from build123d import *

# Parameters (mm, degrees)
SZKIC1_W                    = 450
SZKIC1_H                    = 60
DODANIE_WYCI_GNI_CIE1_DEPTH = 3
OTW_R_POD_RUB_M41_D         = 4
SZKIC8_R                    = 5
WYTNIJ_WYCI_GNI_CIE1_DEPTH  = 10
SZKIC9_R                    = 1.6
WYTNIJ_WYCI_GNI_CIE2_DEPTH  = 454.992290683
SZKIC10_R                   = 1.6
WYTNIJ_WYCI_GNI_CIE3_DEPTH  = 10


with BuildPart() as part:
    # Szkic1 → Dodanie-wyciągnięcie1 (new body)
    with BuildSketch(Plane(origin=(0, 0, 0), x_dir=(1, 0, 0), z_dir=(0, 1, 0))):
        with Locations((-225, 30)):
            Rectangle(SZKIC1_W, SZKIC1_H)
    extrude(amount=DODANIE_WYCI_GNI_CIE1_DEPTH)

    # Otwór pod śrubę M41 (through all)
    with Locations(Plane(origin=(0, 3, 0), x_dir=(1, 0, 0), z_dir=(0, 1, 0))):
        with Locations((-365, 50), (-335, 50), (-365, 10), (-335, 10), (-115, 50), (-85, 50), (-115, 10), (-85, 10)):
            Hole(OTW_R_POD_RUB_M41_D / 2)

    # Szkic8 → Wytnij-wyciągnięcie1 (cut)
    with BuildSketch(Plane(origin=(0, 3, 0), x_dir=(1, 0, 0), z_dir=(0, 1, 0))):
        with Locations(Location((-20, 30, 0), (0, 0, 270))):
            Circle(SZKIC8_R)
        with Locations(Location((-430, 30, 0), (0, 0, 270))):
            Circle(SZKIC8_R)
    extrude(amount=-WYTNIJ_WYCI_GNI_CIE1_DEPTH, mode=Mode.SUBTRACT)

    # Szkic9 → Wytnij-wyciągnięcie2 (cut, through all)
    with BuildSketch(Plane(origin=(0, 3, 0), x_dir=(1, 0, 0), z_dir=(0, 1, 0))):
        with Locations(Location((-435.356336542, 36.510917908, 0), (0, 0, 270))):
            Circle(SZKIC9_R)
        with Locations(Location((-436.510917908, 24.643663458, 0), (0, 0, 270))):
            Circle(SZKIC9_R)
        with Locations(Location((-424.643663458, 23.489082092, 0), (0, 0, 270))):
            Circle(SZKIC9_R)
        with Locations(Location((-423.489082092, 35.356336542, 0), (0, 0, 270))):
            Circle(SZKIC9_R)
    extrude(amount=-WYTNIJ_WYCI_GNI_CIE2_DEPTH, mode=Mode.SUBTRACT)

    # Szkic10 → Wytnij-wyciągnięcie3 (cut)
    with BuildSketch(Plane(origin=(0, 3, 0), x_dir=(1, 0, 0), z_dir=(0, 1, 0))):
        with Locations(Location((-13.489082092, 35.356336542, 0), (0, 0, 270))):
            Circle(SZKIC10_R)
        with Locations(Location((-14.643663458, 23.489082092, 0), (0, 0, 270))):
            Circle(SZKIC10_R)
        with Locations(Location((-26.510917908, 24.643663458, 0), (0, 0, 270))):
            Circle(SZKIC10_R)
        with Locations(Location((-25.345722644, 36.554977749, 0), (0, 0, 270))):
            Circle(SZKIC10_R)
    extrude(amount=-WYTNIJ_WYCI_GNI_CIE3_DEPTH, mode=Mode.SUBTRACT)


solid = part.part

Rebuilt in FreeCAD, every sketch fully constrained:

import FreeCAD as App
import Part
import Sketcher

V = App.Vector


def add_polygon(sketch, points):
    """Adds a closed chain of lines whose ends are joined by coincident constraints."""
    first, n = sketch.GeometryCount, len(points)
    for a, b in zip(points, points[1:] + points[:1]):
        sketch.addGeometry(Part.LineSegment(App.Vector(*a, 0), App.Vector(*b, 0)), False)
    for i in range(n):
        sketch.addConstraint(Sketcher.Constraint("Coincident", first + i, 2, first + (i + 1) % n, 1))

doc = App.newDocument("Part")
body = doc.addObject("PartDesign::Body", "Body")

# Sketch on XZ plane
sketch1 = body.newObject("Sketcher::SketchObject", "Sketch")
sketch1.AttachmentSupport = (doc.getObject("XZ_Plane"), [""])
sketch1.MapMode = "FlatFace"
add_polygon(sketch1, [(-450, -60), (-450, 0), (0, 0), (0, -60)])  # lines 0-3
sketch1.addConstraint(Sketcher.Constraint("Vertical", 0))
sketch1.addConstraint(Sketcher.Constraint("Horizontal", 1))
sketch1.addConstraint(Sketcher.Constraint("Vertical", 2))
sketch1.addConstraint(Sketcher.Constraint("Horizontal", 3))
sketch1.addConstraint(Sketcher.Constraint("Coincident", 1, 2, -1, 1))
sketch1.addConstraint(Sketcher.Constraint("DistanceX", 1, 1, 1, 2, 450.0))
sketch1.addConstraint(Sketcher.Constraint("DistanceY", 0, 1, 0, 2, 60.0))
pad1 = body.newObject("PartDesign::Pad", "Pad")
pad1.Profile = sketch1
pad1.Length = 3
pad1.Reversed = True

# Sketch on XZ plane
sketch2 = body.newObject("Sketcher::SketchObject", "Sketch001")
sketch2.AttachmentSupport = (doc.getObject("XZ_Plane"), [""])
sketch2.MapMode = "FlatFace"
sketch2.AttachmentOffset = App.Placement(V(0, 0, -3), App.Rotation())
sketch2.addGeometry(Part.Circle(V(-365, -50, 0), V(0, 0, 1), 2), False)
sketch2.addGeometry(Part.Circle(V(-335, -50, 0), V(0, 0, 1), 2), False)
sketch2.addGeometry(Part.Circle(V(-365, -10, 0), V(0, 0, 1), 2), False)
sketch2.addGeometry(Part.Circle(V(-335, -10, 0), V(0, 0, 1), 2), False)
sketch2.addGeometry(Part.Circle(V(-115, -50, 0), V(0, 0, 1), 2), False)
sketch2.addGeometry(Part.Circle(V(-85, -50, 0), V(0, 0, 1), 2), False)
sketch2.addGeometry(Part.Circle(V(-115, -10, 0), V(0, 0, 1), 2), False)
sketch2.addGeometry(Part.Circle(V(-85, -10, 0), V(0, 0, 1), 2), False)
sketch2.addConstraint(Sketcher.Constraint("Equal", 0, 1))
sketch2.addConstraint(Sketcher.Constraint("Equal", 1, 2))
sketch2.addConstraint(Sketcher.Constraint("Equal", 2, 3))
sketch2.addConstraint(Sketcher.Constraint("Equal", 3, 4))
sketch2.addConstraint(Sketcher.Constraint("Equal", 4, 5))
sketch2.addConstraint(Sketcher.Constraint("Equal", 5, 6))
sketch2.addConstraint(Sketcher.Constraint("Equal", 6, 7))
sketch2.addConstraint(Sketcher.Constraint("Horizontal", 0, 3, 1, 3))
sketch2.addConstraint(Sketcher.Constraint("Horizontal", 2, 3, 3, 3))
sketch2.addConstraint(Sketcher.Constraint("Horizontal", 1, 3, 4, 3))
sketch2.addConstraint(Sketcher.Constraint("Horizontal", 4, 3, 5, 3))
sketch2.addConstraint(Sketcher.Constraint("Horizontal", 3, 3, 6, 3))
sketch2.addConstraint(Sketcher.Constraint("Horizontal", 6, 3, 7, 3))
sketch2.addConstraint(Sketcher.Constraint("Vertical", 0, 3, 2, 3))
sketch2.addConstraint(Sketcher.Constraint("Vertical", 1, 3, 3, 3))
sketch2.addConstraint(Sketcher.Constraint("Vertical", 4, 3, 6, 3))
sketch2.addConstraint(Sketcher.Constraint("Vertical", 5, 3, 7, 3))
sketch2.addConstraint(Sketcher.Constraint("Diameter", 0, 4.0))
sketch2.addConstraint(Sketcher.Constraint("DistanceX", 0, 3, -1, 1, 365.0))
sketch2.addConstraint(Sketcher.Constraint("DistanceY", 0, 3, -1, 1, 50.0))
sketch2.addConstraint(Sketcher.Constraint("DistanceX", 1, 3, -1, 1, 335.0))
sketch2.addConstraint(Sketcher.Constraint("DistanceY", 2, 3, -1, 1, 10.0))
sketch2.addConstraint(Sketcher.Constraint("DistanceX", 4, 3, -1, 1, 115.0))
sketch2.addConstraint(Sketcher.Constraint("DistanceX", 5, 3, -1, 1, 85.0))
doc.recompute()
hole = body.newObject("PartDesign::Hole", "Hole")
hole.Profile = sketch2
hole.ThreadType = "None"
hole.Diameter = 4
hole.DepthType = "ThroughAll"
hole.Reversed = True

# Sketch on XZ plane
sketch3 = body.newObject("Sketcher::SketchObject", "Sketch002")
sketch3.AttachmentSupport = (doc.getObject("XZ_Plane"), [""])
sketch3.MapMode = "FlatFace"
sketch3.AttachmentOffset = App.Placement(V(0, 0, -3), App.Rotation())
sketch3.addGeometry(Part.Circle(V(-20, -30, 0), V(0, 0, 1), 5), False)
sketch3.addGeometry(Part.Circle(V(-430, -30, 0), V(0, 0, 1), 5), False)
sketch3.addConstraint(Sketcher.Constraint("Equal", 0, 1))
sketch3.addConstraint(Sketcher.Constraint("Horizontal", 0, 3, 1, 3))
sketch3.addConstraint(Sketcher.Constraint("Diameter", 0, 10.0))
sketch3.addConstraint(Sketcher.Constraint("DistanceX", 0, 3, -1, 1, 20.0))
sketch3.addConstraint(Sketcher.Constraint("DistanceY", 0, 3, -1, 1, 30.0))
sketch3.addConstraint(Sketcher.Constraint("DistanceX", 1, 3, -1, 1, 430.0))
pocket1 = body.newObject("PartDesign::Pocket", "Pocket")
pocket1.Profile = sketch3
pocket1.Length = 10
pocket1.Reversed = True

# Sketch on XZ plane
sketch4 = body.newObject("Sketcher::SketchObject", "Sketch003")
sketch4.AttachmentSupport = (doc.getObject("XZ_Plane"), [""])
sketch4.MapMode = "FlatFace"
sketch4.AttachmentOffset = App.Placement(V(0, 0, -3), App.Rotation())
sketch4.addGeometry(Part.Circle(V(-435.4, -36.5, 0), V(0, 0, 1), 1.6), False)
sketch4.addGeometry(Part.Circle(V(-436.5, -24.6, 0), V(0, 0, 1), 1.6), False)
sketch4.addGeometry(Part.Circle(V(-424.6, -23.5, 0), V(0, 0, 1), 1.6), False)
sketch4.addGeometry(Part.Circle(V(-423.5, -35.4, 0), V(0, 0, 1), 1.6), False)
sketch4.addConstraint(Sketcher.Constraint("Equal", 0, 1))
sketch4.addConstraint(Sketcher.Constraint("Equal", 1, 2))
sketch4.addConstraint(Sketcher.Constraint("Equal", 2, 3))
sketch4.addConstraint(Sketcher.Constraint("Diameter", 0, 3.2))
sketch4.addConstraint(Sketcher.Constraint("DistanceX", 1, 3, 0, 3, 1.154581))
sketch4.addConstraint(Sketcher.Constraint("DistanceY", 1, 3, 2, 3, 1.154581))
sketch4.addConstraint(Sketcher.Constraint("DistanceX", 2, 3, 3, 3, 1.154581))
sketch4.addConstraint(Sketcher.Constraint("DistanceY", 0, 3, 3, 3, 1.154581))
sketch4.addConstraint(Sketcher.Constraint("DistanceX", 0, 3, -1, 1, 435.356337))
sketch4.addConstraint(Sketcher.Constraint("DistanceY", 0, 3, -1, 1, 36.510918))
sketch4.addConstraint(Sketcher.Constraint("DistanceY", 1, 3, -1, 1, 24.643663))
sketch4.addConstraint(Sketcher.Constraint("DistanceX", 2, 3, -1, 1, 424.643663))
pocket2 = body.newObject("PartDesign::Pocket", "Pocket001")
pocket2.Profile = sketch4
pocket2.Type = "ThroughAll"
pocket2.Reversed = True

# Sketch on XZ plane
sketch5 = body.newObject("Sketcher::SketchObject", "Sketch004")
sketch5.AttachmentSupport = (doc.getObject("XZ_Plane"), [""])
sketch5.MapMode = "FlatFace"
sketch5.AttachmentOffset = App.Placement(V(0, 0, -3), App.Rotation())
sketch5.addGeometry(Part.Circle(V(-13.5, -35.4, 0), V(0, 0, 1), 1.6), False)
sketch5.addGeometry(Part.Circle(V(-14.6, -23.5, 0), V(0, 0, 1), 1.6), False)
sketch5.addGeometry(Part.Circle(V(-26.5, -24.6, 0), V(0, 0, 1), 1.6), False)
sketch5.addGeometry(Part.Circle(V(-25.3, -36.6, 0), V(0, 0, 1), 1.6), False)
sketch5.addConstraint(Sketcher.Constraint("Equal", 0, 1))
sketch5.addConstraint(Sketcher.Constraint("Equal", 1, 2))
sketch5.addConstraint(Sketcher.Constraint("Equal", 2, 3))
sketch5.addConstraint(Sketcher.Constraint("Diameter", 0, 3.2))
sketch5.addConstraint(Sketcher.Constraint("DistanceX", 1, 3, 0, 3, 1.154581))
sketch5.addConstraint(Sketcher.Constraint("DistanceY", 2, 3, 1, 3, 1.154581))
sketch5.addConstraint(Sketcher.Constraint("DistanceX", 3, 3, 0, 3, 11.856641))
sketch5.addConstraint(Sketcher.Constraint("DistanceY", 3, 3, 0, 3, 1.198641))
sketch5.addConstraint(Sketcher.Constraint("DistanceX", 0, 3, -1, 1, 13.489082))
sketch5.addConstraint(Sketcher.Constraint("DistanceY", 0, 3, -1, 1, 35.356337))
sketch5.addConstraint(Sketcher.Constraint("DistanceY", 1, 3, -1, 1, 23.489082))
sketch5.addConstraint(Sketcher.Constraint("DistanceX", 2, 3, -1, 1, 26.510918))
pocket3 = body.newObject("PartDesign::Pocket", "Pocket002")
pocket3.Profile = sketch5
pocket3.Length = 10
pocket3.Reversed = True

doc.recompute()
